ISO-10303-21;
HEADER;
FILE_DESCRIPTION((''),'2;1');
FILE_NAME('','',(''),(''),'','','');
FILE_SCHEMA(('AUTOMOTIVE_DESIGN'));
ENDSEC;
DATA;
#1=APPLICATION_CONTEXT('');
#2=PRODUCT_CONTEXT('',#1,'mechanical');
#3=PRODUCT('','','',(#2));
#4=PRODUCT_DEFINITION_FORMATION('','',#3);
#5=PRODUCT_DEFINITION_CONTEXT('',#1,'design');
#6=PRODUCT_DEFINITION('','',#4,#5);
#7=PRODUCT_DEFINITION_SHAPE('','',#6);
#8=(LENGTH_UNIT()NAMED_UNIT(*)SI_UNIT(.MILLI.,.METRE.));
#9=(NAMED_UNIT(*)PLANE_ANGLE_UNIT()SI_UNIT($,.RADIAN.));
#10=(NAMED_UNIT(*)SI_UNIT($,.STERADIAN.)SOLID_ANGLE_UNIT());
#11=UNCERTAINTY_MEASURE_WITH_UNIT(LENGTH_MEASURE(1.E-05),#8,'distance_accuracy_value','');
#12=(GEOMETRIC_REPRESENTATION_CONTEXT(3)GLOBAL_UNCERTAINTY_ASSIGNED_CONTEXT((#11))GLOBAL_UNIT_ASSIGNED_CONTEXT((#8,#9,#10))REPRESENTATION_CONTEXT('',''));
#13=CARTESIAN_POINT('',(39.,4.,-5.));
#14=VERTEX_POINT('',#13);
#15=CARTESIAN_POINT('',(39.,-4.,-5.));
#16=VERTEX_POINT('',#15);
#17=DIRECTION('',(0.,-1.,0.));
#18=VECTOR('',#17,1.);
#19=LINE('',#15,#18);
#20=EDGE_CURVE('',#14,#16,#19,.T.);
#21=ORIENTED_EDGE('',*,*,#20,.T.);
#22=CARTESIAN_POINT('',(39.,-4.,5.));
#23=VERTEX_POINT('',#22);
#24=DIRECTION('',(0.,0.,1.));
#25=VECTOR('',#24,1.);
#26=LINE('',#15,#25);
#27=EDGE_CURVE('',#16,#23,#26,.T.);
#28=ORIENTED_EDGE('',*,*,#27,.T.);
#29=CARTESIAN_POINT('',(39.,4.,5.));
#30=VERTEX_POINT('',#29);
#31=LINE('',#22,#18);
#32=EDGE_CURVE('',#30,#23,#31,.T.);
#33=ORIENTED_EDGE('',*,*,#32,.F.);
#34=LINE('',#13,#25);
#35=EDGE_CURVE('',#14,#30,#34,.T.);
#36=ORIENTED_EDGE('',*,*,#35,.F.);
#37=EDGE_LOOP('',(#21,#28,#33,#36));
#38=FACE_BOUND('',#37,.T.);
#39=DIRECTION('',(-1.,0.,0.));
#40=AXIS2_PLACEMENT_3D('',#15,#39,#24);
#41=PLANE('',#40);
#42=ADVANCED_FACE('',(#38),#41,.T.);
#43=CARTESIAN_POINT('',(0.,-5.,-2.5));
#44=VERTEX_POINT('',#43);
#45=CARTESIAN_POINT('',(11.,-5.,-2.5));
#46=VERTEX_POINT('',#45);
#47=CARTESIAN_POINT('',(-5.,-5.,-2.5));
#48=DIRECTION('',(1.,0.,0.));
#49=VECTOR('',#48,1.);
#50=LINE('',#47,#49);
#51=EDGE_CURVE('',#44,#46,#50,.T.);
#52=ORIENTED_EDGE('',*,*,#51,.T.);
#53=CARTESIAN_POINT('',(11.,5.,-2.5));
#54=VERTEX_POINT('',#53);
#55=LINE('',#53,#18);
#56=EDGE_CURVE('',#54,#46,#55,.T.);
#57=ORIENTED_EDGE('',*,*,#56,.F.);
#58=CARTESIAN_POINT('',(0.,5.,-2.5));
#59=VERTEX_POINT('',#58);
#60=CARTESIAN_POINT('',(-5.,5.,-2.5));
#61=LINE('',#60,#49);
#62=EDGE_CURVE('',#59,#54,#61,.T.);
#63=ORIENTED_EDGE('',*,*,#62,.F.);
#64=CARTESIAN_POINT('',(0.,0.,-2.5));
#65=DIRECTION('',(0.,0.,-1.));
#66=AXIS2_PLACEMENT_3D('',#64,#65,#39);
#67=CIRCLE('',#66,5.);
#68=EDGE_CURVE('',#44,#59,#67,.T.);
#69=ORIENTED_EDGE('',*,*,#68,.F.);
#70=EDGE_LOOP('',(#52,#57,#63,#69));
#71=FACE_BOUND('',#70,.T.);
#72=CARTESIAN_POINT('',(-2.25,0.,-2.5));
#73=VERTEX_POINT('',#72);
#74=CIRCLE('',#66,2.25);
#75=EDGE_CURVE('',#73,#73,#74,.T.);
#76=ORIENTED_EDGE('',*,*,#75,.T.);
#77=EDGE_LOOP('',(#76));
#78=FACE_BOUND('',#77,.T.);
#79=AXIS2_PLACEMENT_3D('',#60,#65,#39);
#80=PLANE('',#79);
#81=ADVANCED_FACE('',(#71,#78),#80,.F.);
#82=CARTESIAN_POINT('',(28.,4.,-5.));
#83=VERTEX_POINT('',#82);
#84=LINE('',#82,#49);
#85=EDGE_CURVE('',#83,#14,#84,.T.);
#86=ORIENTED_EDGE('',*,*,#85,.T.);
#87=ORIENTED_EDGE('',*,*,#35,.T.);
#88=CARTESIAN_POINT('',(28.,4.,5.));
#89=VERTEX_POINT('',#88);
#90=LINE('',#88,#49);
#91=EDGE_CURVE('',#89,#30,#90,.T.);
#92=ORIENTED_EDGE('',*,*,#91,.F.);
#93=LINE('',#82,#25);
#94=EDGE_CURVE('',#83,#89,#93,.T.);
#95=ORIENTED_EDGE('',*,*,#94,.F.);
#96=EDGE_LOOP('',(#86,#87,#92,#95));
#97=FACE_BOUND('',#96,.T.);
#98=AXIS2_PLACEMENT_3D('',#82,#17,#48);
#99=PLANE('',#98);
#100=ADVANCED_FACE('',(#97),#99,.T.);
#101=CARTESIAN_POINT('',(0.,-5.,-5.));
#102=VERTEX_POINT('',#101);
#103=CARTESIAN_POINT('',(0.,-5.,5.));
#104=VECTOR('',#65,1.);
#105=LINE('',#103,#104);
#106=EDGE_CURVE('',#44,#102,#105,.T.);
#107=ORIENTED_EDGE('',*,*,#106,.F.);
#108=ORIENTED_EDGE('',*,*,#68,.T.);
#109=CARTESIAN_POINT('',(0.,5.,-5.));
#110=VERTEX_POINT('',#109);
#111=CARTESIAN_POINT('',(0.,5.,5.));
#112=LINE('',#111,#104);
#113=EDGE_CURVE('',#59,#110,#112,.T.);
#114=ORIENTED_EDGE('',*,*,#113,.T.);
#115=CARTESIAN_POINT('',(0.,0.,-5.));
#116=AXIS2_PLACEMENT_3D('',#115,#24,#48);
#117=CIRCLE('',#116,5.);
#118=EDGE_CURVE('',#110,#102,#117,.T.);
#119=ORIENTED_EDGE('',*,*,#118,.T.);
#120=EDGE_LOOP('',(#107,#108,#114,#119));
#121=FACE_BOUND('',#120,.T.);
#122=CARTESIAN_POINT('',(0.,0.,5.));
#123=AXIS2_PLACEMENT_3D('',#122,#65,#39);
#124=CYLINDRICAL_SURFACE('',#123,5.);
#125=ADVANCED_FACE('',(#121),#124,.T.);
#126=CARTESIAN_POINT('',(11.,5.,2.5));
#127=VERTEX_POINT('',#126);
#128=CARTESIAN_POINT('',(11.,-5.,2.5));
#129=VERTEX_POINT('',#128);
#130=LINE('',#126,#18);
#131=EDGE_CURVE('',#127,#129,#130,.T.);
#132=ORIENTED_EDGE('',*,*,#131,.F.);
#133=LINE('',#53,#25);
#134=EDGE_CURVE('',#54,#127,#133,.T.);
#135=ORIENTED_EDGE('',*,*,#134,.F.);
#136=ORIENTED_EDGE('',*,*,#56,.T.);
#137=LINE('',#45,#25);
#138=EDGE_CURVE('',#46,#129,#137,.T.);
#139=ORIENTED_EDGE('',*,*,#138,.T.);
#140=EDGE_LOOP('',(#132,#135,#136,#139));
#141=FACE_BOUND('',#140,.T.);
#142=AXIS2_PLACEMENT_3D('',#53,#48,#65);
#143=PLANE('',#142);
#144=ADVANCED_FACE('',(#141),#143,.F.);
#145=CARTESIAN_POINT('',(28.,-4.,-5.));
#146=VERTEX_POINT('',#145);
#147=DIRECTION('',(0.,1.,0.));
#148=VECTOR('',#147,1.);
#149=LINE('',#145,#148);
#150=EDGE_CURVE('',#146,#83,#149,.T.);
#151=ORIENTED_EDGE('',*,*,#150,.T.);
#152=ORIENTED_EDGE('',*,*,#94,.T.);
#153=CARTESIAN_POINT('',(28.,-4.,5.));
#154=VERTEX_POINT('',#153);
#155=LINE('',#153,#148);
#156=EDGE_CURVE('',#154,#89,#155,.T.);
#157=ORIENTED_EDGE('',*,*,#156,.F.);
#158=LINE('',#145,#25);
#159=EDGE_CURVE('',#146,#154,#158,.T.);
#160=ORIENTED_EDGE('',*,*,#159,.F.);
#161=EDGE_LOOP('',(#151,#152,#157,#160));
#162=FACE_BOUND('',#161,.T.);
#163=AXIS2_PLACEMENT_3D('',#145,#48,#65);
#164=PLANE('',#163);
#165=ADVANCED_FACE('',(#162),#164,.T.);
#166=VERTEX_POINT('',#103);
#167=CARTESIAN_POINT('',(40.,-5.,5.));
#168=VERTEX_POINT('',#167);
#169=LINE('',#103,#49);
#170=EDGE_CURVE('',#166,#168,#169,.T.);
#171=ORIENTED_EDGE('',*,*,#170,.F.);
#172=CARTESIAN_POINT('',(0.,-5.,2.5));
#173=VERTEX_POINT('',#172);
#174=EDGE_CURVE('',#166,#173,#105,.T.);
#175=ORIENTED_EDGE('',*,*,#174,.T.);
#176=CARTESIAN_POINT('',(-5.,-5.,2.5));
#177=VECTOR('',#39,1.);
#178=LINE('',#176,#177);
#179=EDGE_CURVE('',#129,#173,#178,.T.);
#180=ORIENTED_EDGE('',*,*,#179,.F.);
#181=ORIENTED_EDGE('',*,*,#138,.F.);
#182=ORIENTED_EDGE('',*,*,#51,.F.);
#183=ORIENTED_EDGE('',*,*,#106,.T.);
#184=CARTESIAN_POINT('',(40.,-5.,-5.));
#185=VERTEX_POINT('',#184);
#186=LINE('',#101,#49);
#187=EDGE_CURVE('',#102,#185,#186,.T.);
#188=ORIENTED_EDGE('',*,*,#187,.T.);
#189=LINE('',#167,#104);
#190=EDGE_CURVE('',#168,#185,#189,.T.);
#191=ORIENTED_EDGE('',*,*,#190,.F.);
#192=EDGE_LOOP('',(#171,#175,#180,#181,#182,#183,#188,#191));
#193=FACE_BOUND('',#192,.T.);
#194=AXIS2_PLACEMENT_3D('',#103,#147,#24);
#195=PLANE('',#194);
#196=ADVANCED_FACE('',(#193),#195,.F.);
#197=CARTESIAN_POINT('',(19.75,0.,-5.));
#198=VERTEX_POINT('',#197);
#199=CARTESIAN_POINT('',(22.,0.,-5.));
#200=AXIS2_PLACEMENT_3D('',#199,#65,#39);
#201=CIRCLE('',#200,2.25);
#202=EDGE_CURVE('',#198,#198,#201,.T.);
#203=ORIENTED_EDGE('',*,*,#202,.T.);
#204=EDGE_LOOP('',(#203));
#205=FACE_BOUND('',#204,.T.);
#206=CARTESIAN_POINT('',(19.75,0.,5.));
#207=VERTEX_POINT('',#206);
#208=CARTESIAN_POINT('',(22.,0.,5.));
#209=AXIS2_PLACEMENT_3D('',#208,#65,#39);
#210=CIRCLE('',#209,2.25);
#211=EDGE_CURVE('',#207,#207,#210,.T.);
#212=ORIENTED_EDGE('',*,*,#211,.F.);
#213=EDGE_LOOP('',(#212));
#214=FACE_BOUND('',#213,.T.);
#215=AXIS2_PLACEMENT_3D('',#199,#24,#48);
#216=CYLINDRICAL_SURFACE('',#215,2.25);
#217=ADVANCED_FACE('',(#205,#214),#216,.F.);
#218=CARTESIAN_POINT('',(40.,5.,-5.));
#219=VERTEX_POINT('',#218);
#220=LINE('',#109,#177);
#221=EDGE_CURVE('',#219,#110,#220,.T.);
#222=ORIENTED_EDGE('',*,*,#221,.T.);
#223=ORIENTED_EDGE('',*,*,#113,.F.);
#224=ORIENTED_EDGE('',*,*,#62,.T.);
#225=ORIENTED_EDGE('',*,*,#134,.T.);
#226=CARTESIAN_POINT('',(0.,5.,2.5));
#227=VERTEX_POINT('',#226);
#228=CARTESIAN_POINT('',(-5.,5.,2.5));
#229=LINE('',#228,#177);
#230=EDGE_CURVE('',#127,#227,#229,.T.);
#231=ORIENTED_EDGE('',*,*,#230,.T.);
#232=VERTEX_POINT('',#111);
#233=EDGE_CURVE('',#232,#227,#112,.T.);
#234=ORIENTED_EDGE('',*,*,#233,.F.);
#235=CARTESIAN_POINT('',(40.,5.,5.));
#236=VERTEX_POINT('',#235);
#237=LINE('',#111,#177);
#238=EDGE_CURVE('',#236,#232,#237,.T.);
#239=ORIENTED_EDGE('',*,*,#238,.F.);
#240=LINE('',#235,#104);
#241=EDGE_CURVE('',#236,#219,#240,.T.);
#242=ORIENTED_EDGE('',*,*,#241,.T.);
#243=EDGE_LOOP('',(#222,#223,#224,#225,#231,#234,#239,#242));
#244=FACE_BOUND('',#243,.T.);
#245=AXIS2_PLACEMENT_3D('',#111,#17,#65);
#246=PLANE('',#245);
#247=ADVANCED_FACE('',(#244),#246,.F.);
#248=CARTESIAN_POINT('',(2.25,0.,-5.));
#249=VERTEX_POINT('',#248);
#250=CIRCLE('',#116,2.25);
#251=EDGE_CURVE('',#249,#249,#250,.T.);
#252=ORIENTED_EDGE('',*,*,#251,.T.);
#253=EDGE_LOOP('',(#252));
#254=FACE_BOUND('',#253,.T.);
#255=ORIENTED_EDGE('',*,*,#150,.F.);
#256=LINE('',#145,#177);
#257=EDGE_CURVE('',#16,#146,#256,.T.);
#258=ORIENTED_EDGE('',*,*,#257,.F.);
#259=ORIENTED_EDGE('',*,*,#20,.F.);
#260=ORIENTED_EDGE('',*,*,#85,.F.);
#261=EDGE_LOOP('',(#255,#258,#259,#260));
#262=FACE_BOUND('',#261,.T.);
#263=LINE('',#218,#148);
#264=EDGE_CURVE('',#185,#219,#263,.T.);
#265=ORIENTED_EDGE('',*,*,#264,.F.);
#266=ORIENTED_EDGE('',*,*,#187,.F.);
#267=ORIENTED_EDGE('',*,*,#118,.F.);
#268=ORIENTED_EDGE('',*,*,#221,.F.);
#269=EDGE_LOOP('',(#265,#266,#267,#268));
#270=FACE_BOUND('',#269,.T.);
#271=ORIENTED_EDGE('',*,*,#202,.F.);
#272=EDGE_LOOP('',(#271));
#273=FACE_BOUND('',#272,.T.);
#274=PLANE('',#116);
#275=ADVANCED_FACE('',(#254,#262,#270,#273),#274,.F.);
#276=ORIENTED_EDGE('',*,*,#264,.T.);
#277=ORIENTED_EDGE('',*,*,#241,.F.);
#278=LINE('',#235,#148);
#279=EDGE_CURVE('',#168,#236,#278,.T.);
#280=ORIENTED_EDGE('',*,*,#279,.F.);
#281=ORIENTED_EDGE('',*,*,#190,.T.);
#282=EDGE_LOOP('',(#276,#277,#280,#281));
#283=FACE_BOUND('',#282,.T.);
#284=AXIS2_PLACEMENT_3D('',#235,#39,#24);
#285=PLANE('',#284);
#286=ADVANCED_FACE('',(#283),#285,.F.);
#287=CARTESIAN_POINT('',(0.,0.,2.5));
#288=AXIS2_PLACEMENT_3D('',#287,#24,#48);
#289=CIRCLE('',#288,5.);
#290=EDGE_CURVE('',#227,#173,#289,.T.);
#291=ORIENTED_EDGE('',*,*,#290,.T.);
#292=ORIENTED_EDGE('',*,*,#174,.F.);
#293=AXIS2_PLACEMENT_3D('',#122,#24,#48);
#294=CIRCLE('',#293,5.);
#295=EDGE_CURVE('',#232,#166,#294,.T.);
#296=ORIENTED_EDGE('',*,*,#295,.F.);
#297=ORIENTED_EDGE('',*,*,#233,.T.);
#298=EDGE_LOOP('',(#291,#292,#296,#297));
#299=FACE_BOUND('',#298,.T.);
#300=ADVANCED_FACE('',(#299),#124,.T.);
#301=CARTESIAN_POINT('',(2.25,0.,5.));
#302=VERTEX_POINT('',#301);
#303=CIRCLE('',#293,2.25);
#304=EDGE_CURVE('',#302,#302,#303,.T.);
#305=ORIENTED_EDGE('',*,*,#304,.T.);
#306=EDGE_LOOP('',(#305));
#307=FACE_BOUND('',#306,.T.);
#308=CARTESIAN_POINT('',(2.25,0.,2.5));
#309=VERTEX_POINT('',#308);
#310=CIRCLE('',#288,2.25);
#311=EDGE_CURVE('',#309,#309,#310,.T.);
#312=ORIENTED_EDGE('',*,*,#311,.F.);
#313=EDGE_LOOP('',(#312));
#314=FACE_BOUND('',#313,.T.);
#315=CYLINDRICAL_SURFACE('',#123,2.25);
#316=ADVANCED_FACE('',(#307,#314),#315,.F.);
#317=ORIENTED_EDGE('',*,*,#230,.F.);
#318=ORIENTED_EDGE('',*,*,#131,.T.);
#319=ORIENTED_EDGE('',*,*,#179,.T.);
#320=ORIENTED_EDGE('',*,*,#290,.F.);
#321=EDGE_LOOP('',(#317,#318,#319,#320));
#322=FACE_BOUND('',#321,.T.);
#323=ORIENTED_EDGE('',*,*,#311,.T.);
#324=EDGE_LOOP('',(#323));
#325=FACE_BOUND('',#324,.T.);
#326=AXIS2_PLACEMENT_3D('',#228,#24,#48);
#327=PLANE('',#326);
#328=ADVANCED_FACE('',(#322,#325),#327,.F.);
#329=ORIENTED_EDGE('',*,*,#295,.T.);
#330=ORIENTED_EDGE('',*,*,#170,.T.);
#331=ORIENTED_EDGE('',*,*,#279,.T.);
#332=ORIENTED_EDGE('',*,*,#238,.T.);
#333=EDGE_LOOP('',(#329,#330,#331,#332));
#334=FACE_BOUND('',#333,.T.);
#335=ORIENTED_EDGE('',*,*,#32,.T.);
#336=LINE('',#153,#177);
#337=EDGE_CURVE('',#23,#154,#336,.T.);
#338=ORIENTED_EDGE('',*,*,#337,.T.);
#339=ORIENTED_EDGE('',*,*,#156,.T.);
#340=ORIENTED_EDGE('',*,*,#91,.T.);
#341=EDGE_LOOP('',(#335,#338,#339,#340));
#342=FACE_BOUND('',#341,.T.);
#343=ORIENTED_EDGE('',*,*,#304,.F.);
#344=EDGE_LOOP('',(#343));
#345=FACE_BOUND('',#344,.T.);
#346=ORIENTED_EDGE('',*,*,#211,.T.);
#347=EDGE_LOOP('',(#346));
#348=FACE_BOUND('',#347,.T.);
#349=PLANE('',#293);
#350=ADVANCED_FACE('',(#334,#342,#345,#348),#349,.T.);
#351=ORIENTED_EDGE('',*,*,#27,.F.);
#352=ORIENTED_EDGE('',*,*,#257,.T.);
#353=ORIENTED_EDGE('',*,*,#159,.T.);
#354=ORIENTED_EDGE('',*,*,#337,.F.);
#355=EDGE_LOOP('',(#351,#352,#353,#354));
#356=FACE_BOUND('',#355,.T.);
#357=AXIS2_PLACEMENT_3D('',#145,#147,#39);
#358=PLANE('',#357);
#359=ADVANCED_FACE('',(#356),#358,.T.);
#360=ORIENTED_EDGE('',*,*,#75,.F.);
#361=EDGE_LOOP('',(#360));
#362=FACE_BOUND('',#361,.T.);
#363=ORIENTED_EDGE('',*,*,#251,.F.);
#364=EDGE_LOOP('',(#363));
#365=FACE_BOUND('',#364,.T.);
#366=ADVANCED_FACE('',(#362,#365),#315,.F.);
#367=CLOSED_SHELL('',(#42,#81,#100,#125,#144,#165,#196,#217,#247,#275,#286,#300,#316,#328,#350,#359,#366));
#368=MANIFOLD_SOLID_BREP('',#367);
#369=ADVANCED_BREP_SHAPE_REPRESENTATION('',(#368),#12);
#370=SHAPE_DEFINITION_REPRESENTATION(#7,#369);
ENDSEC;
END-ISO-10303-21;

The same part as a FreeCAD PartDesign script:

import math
import FreeCAD as App
import Part
import Sketcher

doc = App.newDocument("Part")
body = doc.addObject("PartDesign::Body", "Body")

sketch1 = body.newObject("Sketcher::SketchObject", "Sketch")
sketch1.AttachmentSupport = (doc.getObject("XY_Plane"), [""])
sketch1.MapMode = "FlatFace"
sketch1.addGeometry([
    Part.LineSegment(App.Vector(40, 5, 0), App.Vector(0, 5, 0)),
    Part.ArcOfCircle(Part.Circle(App.Vector(0, 0, 0), App.Vector(0, 0, 1), 5), math.radians(90), math.radians(270)),
    Part.LineSegment(App.Vector(0, -5, 0), App.Vector(40, -5, 0)),
    Part.LineSegment(App.Vector(40, -5, 0), App.Vector(40, 5, 0)),
    Part.Circle(App.Vector(0, 0, 0), App.Vector(0, 0, 1), 2.2),
], False)
sketch1.addConstraint([
    Sketcher.Constraint("Tangent", 0, 2, 1, 1),
    Sketcher.Constraint("Tangent", 1, 2, 2, 1),
    Sketcher.Constraint("Coincident", 2, 2, 3, 1),
    Sketcher.Constraint("Coincident", 3, 2, 0, 1),
    Sketcher.Constraint("Horizontal", 0),
    Sketcher.Constraint("Horizontal", 2),
    Sketcher.Constraint("Vertical", 3),
    Sketcher.Constraint("Coincident", 1, 3, -1, 1),
    Sketcher.Constraint("Coincident", 4, 3, -1, 1),
    Sketcher.Constraint("Radius", 1, 5.0),
    Sketcher.Constraint("Diameter", 4, 4.5),
    Sketcher.Constraint("DistanceX", 0, 2, 0, 1, 40.0),
])
pad1 = body.newObject("PartDesign::Pad", "Pad")
pad1.Profile = sketch1
pad1.Length = 10
pad1.Midplane = True

sketch2 = body.newObject("Sketcher::SketchObject", "Sketch001")
sketch2.AttachmentSupport = (doc.getObject("XY_Plane"), [""])
sketch2.MapMode = "FlatFace"
sketch2.AttachmentOffset = App.Placement(App.Vector(0, 0, 5), App.Rotation())
sketch2.addGeometry(Part.Circle(App.Vector(22, 0, 0), App.Vector(0, 0, 1), 2.2), False)
sketch2.addConstraint([
    Sketcher.Constraint("PointOnObject", 0, 3, -1),
    Sketcher.Constraint("Diameter", 0, 4.5),
    Sketcher.Constraint("DistanceX", -1, 1, 0, 3, 22.0),
])
pocket1 = body.newObject("PartDesign::Pocket", "Pocket")
pocket1.Profile = sketch2
pocket1.Type = "ThroughAll"

sketch3 = body.newObject("Sketcher::SketchObject", "Sketch002")
sketch3.AttachmentSupport = (doc.getObject("XY_Plane"), [""])
sketch3.MapMode = "FlatFace"
sketch3.AttachmentOffset = App.Placement(App.Vector(0, 0, 5), App.Rotation())
sketch3.addGeometry([
    Part.LineSegment(App.Vector(39, 4, 0), App.Vector(39, -4, 0)),
    Part.LineSegment(App.Vector(39, -4, 0), App.Vector(28, -4, 0)),
    Part.LineSegment(App.Vector(28, -4, 0), App.Vector(28, 4, 0)),
    Part.LineSegment(App.Vector(28, 4, 0), App.Vector(39, 4, 0)),
], False)
sketch3.addConstraint([
    Sketcher.Constraint("Coincident", 0, 2, 1, 1),
    Sketcher.Constraint("Coincident", 1, 2, 2, 1),
    Sketcher.Constraint("Coincident", 2, 2, 3, 1),
    Sketcher.Constraint("Coincident", 3, 2, 0, 1),
    Sketcher.Constraint("Vertical", 0),
    Sketcher.Constraint("Horizontal", 1),
    Sketcher.Constraint("Vertical", 2),
    Sketcher.Constraint("Horizontal", 3),
    Sketcher.Constraint("DistanceX", 1, 2, 1, 1, 11.0),
    Sketcher.Constraint("DistanceY", 0, 2, 0, 1, 8.0),
    Sketcher.Constraint("DistanceX", -1, 1, 0, 2, 39.0),
    Sketcher.Constraint("DistanceY", 0, 2, -1, 1, 4.0),
])
pocket2 = body.newObject("PartDesign::Pocket", "Pocket001")
pocket2.Profile = sketch3
pocket2.Type = "ThroughAll"

sketch4 = body.newObject("Sketcher::SketchObject", "Sketch003")
sketch4.AttachmentSupport = (doc.getObject("XZ_Plane"), [""])
sketch4.MapMode = "FlatFace"
sketch4.AttachmentOffset = App.Placement(App.Vector(0, 0, 5), App.Rotation())
sketch4.addGeometry([
    Part.LineSegment(App.Vector(-5, 2, 0), App.Vector(-5, -2, 0)),
    Part.LineSegment(App.Vector(-5, -2, 0), App.Vector(11, -2, 0)),
    Part.LineSegment(App.Vector(11, -2, 0), App.Vector(11, 2, 0)),
    Part.LineSegment(App.Vector(11, 2, 0), App.Vector(-5, 2, 0)),
], False)
sketch4.addConstraint([
    Sketcher.Constraint("Coincident", 0, 2, 1, 1),
    Sketcher.Constraint("Coincident", 1, 2, 2, 1),
    Sketcher.Constraint("Coincident", 2, 2, 3, 1),
    Sketcher.Constraint("Coincident", 3, 2, 0, 1),
    Sketcher.Constraint("Vertical", 0),
    Sketcher.Constraint("Horizontal", 1),
    Sketcher.Constraint("Vertical", 2),
    Sketcher.Constraint("Horizontal", 3),
    Sketcher.Constraint("DistanceX", 1, 1, 1, 2, 16.0),
    Sketcher.Constraint("DistanceY", 0, 2, 0, 1, 5.0),
    Sketcher.Constraint("DistanceX", 0, 2, -1, 1, 5.0),
    Sketcher.Constraint("DistanceY", 0, 2, -1, 1, 2.5),
])
pocket3 = body.newObject("PartDesign::Pocket", "Pocket002")
pocket3.Profile = sketch4
pocket3.Type = "ThroughAll"

doc.recompute()
